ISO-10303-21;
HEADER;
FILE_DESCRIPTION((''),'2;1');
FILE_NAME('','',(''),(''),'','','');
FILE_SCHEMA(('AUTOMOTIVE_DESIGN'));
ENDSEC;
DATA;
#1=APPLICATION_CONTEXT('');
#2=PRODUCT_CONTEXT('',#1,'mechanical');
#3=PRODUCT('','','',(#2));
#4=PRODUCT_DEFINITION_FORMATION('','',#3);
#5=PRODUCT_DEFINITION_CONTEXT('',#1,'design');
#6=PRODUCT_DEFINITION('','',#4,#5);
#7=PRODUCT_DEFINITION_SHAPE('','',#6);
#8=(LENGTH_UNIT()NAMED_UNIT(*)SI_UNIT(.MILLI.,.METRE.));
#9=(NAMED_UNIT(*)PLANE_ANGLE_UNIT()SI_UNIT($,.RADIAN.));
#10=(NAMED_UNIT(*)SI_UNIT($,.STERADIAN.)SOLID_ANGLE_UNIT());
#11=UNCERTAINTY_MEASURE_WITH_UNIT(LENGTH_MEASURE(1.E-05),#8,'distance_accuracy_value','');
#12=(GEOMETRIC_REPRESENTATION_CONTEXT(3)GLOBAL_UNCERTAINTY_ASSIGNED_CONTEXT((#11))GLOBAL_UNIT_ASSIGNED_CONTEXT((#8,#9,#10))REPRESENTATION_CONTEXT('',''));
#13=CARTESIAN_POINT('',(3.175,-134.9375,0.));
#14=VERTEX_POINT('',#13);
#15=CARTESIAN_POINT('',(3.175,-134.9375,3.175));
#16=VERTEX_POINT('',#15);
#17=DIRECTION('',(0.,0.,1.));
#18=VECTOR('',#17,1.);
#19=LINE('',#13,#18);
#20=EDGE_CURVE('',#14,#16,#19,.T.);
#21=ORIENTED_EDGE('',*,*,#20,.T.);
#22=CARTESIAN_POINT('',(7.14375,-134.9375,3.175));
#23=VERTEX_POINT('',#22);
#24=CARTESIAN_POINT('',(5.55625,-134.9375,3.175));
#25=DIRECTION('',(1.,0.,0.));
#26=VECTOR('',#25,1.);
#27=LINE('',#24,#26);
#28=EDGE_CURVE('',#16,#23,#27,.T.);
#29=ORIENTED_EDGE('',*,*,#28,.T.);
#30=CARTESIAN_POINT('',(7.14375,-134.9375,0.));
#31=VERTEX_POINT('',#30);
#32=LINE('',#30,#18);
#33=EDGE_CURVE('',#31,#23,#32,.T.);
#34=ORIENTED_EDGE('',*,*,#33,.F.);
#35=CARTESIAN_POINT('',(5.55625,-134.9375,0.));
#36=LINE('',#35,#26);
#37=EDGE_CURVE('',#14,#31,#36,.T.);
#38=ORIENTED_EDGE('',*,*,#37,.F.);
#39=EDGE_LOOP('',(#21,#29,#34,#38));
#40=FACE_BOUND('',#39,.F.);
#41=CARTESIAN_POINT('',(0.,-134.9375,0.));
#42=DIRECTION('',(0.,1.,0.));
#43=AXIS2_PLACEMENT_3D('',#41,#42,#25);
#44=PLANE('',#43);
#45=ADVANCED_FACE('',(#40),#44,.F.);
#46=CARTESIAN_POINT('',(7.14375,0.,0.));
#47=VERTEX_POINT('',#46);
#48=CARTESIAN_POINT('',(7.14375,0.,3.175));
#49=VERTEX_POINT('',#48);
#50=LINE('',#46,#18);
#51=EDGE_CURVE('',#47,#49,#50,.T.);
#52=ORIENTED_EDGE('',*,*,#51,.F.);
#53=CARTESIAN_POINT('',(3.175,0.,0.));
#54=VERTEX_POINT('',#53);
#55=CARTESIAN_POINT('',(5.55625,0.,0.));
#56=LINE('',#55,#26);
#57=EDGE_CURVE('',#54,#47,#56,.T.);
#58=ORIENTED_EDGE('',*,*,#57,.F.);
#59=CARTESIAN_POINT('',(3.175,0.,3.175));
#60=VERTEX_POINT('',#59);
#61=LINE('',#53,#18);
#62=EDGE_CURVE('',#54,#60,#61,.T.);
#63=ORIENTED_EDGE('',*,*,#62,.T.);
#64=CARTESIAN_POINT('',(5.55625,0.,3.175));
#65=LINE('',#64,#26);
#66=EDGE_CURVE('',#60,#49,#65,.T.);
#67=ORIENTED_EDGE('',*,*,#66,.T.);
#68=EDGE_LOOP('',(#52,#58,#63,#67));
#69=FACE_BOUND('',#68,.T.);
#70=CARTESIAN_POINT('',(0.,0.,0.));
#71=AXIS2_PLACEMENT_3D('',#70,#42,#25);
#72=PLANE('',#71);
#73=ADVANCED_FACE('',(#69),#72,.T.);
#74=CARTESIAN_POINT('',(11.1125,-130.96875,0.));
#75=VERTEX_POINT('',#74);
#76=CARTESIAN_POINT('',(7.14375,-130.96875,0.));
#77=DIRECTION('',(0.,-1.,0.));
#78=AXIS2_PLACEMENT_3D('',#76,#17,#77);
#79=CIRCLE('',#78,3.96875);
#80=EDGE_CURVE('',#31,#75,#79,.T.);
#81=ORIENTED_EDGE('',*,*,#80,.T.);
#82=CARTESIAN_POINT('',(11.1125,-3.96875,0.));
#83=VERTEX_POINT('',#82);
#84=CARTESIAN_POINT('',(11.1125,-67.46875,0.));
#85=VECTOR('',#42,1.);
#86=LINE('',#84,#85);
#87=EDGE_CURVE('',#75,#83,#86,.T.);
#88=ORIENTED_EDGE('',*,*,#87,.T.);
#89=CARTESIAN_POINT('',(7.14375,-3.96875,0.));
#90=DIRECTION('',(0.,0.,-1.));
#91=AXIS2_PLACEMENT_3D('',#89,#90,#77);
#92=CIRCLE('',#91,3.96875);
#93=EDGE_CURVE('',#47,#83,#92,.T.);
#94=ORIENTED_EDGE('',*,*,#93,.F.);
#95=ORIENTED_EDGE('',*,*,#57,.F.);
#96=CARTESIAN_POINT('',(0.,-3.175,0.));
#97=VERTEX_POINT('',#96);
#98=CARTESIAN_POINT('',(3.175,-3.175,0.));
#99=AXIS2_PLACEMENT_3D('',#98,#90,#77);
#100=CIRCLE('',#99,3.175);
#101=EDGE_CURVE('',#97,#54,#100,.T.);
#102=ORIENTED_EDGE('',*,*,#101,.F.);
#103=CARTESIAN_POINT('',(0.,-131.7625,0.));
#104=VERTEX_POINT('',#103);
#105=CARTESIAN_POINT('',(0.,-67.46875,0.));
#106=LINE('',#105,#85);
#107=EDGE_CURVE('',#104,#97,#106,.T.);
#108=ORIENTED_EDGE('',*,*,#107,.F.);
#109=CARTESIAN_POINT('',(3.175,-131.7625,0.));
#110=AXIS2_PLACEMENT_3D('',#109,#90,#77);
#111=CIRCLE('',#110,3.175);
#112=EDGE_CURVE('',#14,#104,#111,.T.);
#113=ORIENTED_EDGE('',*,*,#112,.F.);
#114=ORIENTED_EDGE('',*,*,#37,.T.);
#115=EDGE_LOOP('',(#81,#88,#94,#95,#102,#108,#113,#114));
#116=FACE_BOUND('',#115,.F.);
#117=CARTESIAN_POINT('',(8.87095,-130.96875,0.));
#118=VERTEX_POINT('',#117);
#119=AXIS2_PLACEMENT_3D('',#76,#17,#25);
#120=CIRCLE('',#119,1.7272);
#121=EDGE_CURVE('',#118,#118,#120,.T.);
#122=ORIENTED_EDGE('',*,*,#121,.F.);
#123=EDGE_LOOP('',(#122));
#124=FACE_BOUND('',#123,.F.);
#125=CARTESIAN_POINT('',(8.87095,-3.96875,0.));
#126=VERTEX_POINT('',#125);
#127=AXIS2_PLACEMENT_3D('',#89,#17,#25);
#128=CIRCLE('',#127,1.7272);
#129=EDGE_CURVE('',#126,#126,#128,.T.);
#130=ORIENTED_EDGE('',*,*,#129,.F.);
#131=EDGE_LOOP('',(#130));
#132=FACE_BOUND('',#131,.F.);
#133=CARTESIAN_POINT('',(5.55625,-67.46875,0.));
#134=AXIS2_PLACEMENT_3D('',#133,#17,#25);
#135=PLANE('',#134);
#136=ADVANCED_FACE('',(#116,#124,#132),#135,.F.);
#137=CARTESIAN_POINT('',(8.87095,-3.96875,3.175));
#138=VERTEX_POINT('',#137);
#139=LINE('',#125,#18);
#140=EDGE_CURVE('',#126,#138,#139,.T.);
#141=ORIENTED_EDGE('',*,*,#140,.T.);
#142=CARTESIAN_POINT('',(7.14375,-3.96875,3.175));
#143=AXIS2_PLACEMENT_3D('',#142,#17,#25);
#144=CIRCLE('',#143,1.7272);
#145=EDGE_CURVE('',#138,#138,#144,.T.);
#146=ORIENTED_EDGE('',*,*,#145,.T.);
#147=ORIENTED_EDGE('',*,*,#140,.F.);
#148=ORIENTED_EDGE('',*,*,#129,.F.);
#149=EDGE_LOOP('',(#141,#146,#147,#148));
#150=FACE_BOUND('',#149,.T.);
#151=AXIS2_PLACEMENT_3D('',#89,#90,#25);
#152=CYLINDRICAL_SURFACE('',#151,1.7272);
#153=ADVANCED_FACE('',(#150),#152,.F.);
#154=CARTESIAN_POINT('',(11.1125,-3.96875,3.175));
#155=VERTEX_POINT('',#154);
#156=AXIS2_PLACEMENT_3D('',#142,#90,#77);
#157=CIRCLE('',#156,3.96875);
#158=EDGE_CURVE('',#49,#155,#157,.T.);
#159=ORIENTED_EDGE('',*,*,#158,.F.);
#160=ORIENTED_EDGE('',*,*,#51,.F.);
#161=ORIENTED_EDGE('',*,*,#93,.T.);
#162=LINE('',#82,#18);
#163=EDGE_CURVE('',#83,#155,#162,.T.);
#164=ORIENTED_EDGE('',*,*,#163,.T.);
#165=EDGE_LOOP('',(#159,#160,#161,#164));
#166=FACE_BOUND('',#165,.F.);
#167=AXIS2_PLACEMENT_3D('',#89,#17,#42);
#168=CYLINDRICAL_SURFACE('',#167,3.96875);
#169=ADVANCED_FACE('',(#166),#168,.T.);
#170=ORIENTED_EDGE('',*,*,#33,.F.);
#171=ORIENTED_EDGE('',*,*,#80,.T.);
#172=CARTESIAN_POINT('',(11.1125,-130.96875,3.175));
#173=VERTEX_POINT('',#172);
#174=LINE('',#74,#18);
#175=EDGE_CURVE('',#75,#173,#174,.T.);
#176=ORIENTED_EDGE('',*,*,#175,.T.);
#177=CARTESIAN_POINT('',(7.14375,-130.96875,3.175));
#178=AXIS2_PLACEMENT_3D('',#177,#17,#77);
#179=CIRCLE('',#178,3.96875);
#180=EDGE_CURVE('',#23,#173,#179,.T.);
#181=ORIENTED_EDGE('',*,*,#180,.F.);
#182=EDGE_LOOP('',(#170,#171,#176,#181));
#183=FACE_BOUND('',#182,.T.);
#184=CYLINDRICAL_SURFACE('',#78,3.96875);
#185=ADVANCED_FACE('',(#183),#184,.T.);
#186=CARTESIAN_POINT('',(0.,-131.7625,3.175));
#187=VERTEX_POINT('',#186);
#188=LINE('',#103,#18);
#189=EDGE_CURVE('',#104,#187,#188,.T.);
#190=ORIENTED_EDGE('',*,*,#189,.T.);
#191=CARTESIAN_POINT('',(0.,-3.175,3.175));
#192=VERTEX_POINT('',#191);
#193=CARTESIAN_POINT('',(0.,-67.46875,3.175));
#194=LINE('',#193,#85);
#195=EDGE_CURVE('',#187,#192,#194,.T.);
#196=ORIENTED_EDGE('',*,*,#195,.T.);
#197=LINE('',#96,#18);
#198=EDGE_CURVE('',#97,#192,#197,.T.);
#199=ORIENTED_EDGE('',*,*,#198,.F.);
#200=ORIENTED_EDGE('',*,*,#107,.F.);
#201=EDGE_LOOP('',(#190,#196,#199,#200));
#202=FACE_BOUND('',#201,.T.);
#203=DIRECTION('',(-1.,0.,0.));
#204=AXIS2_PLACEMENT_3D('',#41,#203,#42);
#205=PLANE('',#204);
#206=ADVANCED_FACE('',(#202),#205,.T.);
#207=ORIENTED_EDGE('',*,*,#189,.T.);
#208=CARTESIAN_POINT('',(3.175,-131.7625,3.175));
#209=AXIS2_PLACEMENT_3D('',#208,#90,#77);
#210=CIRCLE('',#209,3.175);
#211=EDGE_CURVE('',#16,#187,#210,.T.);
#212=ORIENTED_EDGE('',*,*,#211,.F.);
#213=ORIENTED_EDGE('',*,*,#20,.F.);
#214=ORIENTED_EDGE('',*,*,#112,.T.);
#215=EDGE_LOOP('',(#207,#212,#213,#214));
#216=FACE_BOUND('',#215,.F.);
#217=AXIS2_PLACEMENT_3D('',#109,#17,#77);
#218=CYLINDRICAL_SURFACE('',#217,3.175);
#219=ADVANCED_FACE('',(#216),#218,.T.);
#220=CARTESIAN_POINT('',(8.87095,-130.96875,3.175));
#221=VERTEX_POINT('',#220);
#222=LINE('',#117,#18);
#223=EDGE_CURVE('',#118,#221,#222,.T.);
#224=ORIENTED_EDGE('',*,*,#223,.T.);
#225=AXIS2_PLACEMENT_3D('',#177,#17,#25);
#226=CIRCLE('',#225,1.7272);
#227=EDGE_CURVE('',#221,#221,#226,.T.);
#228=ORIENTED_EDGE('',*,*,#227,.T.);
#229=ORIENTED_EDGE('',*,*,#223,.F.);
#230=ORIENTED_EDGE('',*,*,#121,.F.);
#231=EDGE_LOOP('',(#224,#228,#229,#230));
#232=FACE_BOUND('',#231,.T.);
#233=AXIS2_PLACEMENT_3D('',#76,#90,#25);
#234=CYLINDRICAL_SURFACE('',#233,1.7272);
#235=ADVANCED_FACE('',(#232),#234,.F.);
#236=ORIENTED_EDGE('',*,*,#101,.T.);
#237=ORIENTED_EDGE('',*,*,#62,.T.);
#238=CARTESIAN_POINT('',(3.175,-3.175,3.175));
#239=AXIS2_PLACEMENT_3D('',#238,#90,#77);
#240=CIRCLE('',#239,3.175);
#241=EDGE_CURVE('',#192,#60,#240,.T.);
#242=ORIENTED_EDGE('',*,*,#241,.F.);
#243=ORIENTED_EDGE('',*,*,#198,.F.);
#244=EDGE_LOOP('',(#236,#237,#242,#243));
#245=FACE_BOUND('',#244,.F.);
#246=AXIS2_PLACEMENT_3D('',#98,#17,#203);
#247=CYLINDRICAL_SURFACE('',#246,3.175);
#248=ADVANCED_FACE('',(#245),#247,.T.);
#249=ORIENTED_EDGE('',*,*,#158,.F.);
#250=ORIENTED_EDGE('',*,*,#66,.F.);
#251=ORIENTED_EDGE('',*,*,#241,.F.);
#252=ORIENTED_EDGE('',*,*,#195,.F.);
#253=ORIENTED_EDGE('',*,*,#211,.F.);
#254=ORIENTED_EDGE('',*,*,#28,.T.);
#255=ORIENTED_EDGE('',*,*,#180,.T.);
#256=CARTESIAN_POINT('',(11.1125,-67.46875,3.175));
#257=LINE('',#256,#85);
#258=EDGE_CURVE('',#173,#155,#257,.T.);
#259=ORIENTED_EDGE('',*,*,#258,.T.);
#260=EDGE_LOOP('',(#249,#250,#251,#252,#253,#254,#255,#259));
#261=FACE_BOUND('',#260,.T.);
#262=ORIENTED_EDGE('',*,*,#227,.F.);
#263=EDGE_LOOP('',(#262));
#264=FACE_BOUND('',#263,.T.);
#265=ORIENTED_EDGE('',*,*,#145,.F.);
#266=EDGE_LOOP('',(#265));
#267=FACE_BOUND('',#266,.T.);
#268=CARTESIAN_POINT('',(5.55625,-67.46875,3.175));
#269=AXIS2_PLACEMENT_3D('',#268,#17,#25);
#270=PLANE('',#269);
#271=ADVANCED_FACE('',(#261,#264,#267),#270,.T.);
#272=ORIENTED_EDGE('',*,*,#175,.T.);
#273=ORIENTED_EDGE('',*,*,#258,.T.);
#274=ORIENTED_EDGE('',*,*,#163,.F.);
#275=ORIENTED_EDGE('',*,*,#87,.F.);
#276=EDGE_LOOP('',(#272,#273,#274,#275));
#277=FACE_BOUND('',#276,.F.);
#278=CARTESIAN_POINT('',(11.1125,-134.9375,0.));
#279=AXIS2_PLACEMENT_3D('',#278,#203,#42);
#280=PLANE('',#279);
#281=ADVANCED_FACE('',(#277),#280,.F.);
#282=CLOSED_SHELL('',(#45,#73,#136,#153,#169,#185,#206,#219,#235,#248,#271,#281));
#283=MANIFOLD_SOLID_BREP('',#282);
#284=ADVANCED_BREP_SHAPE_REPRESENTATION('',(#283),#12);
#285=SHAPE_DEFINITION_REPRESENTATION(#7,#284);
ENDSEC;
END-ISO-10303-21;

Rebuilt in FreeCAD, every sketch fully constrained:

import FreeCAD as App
import Part
import Sketcher

V = App.Vector
Q = App.Units.Quantity


def edges_at(feature, points):
    """Names of the edges that pass closest to the given points."""
    edges = feature.Shape.Edges
    near = lambda p: min(range(len(edges)), key=lambda i: edges[i].distToShape(Part.Vertex(*p))[0])
    return sorted({f"Edge{near(p) + 1}" for p in points})

doc = App.newDocument("Part")
body = doc.addObject("PartDesign::Body", "Body")

sketch1 = body.newObject("Sketcher::SketchObject", "Sketch")
sketch1.AttachmentSupport = (doc.getObject("XY_Plane"), [""])
sketch1.MapMode = "FlatFace"
sketch1.addGeometry([
    Part.LineSegment(V(0, 0, 0), V(0, -134.9375, 0)),
    Part.LineSegment(V(0, -134.9375, 0), V(11.1125, -134.9375, 0)),
    Part.LineSegment(V(11.1125, -134.9375, 0), V(11.1125, 0, 0)),
    Part.LineSegment(V(11.1125, 0, 0), V(0, 0, 0)),
    Part.Circle(V(7.14375, -130.96875, 0), V(0, 0, 1), 1.7272),
    Part.Circle(V(7.14375, -3.96875, 0), V(0, 0, 1), 1.7272),
], False)
sketch1.addConstraint([
    Sketcher.Constraint("Coincident", 0, 2, 1, 1),
    Sketcher.Constraint("Coincident", 1, 2, 2, 1),
    Sketcher.Constraint("Coincident", 2, 2, 3, 1),
    Sketcher.Constraint("Coincident", 3, 2, 0, 1),
    Sketcher.Constraint("Vertical", 0),
    Sketcher.Constraint("Horizontal", 1),
    Sketcher.Constraint("Vertical", 2),
    Sketcher.Constraint("Horizontal", 3),
    Sketcher.Constraint("Coincident", 3, 2, -1, 1),
    Sketcher.Constraint("Equal", 4, 5),
    Sketcher.Constraint("Vertical", 4, 3, 5, 3),
    Sketcher.Constraint("Diameter", 4, Q("0.136 in")),
    Sketcher.Constraint("DistanceY", 4, 3, 5, 3, Q("5 in")),
    Sketcher.Constraint("DistanceX", 1, 1, 1, 2, Q("0.4375 in")),
    Sketcher.Constraint("DistanceY", 0, 2, 0, 1, Q("5.3125 in")),
    Sketcher.Constraint("DistanceX", -1, 1, 4, 3, Q("0.28125 in")),
    Sketcher.Constraint("DistanceY", 4, 3, -1, 1, Q("5.15625 in")),
])
pad1 = body.newObject("PartDesign::Pad", "Pad")
pad1.Profile = sketch1
pad1.Length = Q("0.125 in")
doc.recompute()

fillet = body.newObject("PartDesign::Fillet", "Fillet")
fillet.Base = (pad1, edges_at(pad1, [(11.113, 0, 1.587), (11.113, -134.938, 1.587)]))
fillet.Radius = Q("0.15625 in")
doc.recompute()

fillet2 = body.newObject("PartDesign::Fillet", "Fillet001")
fillet2.Base = (fillet, edges_at(fillet, [(0, -134.938, 1.587), (0, 0, 1.587)]))
fillet2.Radius = Q("0.125 in")

doc.recompute()
